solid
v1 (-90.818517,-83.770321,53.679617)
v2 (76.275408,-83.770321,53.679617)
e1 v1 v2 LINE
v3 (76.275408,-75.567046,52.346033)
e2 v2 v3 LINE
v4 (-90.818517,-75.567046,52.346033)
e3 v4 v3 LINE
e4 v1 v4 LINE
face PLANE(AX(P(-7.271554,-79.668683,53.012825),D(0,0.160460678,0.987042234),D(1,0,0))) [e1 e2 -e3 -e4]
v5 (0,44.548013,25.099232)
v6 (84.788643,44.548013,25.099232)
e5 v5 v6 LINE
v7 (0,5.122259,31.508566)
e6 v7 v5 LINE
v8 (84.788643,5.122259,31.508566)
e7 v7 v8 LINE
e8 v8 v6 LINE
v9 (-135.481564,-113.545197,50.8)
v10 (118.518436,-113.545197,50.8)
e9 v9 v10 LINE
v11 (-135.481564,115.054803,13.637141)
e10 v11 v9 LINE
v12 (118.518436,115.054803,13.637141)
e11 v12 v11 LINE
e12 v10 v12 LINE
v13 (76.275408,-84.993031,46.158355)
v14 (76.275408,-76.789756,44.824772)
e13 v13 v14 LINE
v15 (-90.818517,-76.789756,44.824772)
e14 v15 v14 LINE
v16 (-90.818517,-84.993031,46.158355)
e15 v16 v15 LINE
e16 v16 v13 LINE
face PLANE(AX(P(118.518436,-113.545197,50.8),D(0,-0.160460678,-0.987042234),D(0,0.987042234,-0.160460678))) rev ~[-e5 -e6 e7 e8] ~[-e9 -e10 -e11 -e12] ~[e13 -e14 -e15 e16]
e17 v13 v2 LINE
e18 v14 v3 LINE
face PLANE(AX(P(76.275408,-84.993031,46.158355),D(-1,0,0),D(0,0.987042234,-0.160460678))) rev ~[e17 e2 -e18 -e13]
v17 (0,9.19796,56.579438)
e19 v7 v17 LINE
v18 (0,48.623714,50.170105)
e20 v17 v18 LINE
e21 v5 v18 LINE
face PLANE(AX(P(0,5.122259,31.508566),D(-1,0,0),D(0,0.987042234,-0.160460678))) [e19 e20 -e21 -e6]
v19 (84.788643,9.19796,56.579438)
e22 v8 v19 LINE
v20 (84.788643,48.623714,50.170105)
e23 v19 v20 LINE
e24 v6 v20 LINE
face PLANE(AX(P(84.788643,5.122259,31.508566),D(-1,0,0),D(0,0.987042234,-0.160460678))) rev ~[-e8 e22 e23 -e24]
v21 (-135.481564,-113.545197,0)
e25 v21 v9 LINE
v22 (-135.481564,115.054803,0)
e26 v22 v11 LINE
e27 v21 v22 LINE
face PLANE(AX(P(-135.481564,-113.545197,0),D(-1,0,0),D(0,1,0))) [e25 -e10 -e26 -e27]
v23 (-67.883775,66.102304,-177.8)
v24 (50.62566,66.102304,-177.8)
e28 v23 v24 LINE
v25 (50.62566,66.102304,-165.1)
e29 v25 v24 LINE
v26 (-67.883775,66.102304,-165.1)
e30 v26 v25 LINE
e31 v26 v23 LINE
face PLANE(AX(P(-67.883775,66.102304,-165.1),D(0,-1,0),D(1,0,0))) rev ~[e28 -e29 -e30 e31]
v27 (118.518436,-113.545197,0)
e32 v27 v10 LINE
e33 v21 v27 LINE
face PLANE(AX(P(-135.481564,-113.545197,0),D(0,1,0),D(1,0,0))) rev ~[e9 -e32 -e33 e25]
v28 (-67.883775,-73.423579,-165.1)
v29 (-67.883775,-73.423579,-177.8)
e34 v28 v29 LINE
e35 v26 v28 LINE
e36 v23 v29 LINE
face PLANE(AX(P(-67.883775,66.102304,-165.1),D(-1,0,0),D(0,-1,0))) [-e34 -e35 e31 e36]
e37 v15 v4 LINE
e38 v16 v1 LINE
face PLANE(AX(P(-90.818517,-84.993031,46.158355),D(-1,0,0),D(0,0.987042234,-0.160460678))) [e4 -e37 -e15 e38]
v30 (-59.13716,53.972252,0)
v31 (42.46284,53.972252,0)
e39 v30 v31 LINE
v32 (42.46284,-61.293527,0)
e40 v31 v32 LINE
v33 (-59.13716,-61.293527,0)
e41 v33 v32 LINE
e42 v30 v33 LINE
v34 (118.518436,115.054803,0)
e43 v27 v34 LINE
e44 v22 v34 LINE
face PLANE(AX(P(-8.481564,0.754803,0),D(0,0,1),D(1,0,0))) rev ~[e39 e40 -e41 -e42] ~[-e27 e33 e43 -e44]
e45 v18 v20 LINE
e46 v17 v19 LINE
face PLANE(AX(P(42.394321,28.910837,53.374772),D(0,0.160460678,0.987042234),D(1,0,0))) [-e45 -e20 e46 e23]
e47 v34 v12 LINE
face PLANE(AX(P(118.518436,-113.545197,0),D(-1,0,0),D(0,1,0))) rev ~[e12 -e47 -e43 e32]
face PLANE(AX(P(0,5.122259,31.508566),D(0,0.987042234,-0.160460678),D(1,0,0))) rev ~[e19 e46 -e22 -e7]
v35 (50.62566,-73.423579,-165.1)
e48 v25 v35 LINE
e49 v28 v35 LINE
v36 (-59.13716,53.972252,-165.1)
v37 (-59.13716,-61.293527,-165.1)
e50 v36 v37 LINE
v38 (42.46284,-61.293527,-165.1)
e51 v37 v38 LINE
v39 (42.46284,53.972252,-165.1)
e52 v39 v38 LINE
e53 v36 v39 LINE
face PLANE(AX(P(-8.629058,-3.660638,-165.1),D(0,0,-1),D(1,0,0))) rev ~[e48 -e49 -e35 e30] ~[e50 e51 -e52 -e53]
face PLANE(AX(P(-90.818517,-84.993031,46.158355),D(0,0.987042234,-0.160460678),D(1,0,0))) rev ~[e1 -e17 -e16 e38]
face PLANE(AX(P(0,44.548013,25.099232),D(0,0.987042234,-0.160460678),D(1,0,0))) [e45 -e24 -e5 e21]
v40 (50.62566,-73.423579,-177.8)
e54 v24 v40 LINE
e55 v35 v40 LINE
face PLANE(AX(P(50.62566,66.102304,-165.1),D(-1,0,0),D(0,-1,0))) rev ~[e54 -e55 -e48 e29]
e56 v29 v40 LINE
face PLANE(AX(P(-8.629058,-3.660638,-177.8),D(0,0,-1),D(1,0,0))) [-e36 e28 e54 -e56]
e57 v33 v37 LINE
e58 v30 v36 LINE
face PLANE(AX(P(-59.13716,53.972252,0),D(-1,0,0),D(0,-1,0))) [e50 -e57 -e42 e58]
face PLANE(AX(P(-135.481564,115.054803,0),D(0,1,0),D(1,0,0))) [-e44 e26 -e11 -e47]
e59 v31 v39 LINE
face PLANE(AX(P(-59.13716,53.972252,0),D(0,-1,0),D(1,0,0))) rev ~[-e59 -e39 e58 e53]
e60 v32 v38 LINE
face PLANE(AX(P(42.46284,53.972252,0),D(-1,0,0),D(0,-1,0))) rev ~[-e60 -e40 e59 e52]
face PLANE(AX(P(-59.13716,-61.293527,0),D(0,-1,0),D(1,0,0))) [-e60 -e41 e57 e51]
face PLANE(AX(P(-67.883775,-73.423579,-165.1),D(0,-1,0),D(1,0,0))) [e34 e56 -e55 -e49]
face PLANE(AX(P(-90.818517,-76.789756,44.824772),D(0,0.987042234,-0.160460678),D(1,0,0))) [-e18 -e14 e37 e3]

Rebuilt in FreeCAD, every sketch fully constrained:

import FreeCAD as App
import Part
import Sketcher
from FreeCAD import Vector
Q = App.Units.Quantity

doc = App.newDocument("Part")
body = doc.addObject("PartDesign::Body", "Body")

# Sketch on XY plane
sketch1 = body.newObject("Sketcher::SketchObject", "Sketch")
sketch1.AttachmentSupport = (doc.getObject("XY_Plane"), [""])
sketch1.MapMode = "FlatFace"
sketch1.addGeometry([
    Part.LineSegment(Vector(-135.481564, 115.054803, 0), Vector(-135.481564, -113.545197, 0)),
    Part.LineSegment(Vector(-135.481564, -113.545197, 0), Vector(118.518436, -113.545197, 0)),
    Part.LineSegment(Vector(118.518436, -113.545197, 0), Vector(118.518436, 115.054803, 0)),
    Part.LineSegment(Vector(118.518436, 115.054803, 0), Vector(-135.481564, 115.054803, 0)),
], False)
sketch1.addConstraint([
    Sketcher.Constraint("Coincident", 0, 2, 1, 1),
    Sketcher.Constraint("Coincident", 1, 2, 2, 1),
    Sketcher.Constraint("Coincident", 2, 2, 3, 1),
    Sketcher.Constraint("Coincident", 3, 2, 0, 1),
    Sketcher.Constraint("Vertical", 0),
    Sketcher.Constraint("Horizontal", 1),
    Sketcher.Constraint("Vertical", 2),
    Sketcher.Constraint("Horizontal", 3),
    Sketcher.Constraint("DistanceX", 1, 1, 1, 2, Q("10 in")),
    Sketcher.Constraint("DistanceY", 0, 2, 0, 1, Q("9 in")),
    Sketcher.Constraint("DistanceX", 0, 2, -1, 1, Q("135.481564 mm")),
    Sketcher.Constraint("DistanceY", 0, 2, -1, 1, Q("113.545197 mm")),
])
pad1 = body.newObject("PartDesign::Pad", "Pad")
pad1.Profile = sketch1
pad1.Length = Q("2 in")

# Sketch on XY plane
sketch2 = body.newObject("Sketcher::SketchObject", "Sketch001")
sketch2.AttachmentSupport = (doc.getObject("XY_Plane"), [""])
sketch2.MapMode = "FlatFace"
sketch2.addGeometry([
    Part.LineSegment(Vector(-59.13716, -61.293527, 0), Vector(-59.13716, 53.972252, 0)),
    Part.LineSegment(Vector(-59.13716, 53.972252, 0), Vector(42.46284, 53.972252, 0)),
    Part.LineSegment(Vector(42.46284, 53.972252, 0), Vector(42.46284, -61.293527, 0)),
    Part.LineSegment(Vector(42.46284, -61.293527, 0), Vector(-59.13716, -61.293527, 0)),
], False)
sketch2.addConstraint([
    Sketcher.Constraint("Coincident", 0, 2, 1, 1),
    Sketcher.Constraint("Coincident", 1, 2, 2, 1),
    Sketcher.Constraint("Coincident", 2, 2, 3, 1),
    Sketcher.Constraint("Coincident", 3, 2, 0, 1),
    Sketcher.Constraint("Vertical", 0),
    Sketcher.Constraint("Horizontal", 1),
    Sketcher.Constraint("Vertical", 2),
    Sketcher.Constraint("Horizontal", 3),
    Sketcher.Constraint("DistanceX", 1, 1, 1, 2, Q("4 in")),
    Sketcher.Constraint("DistanceY", 0, 1, 0, 2, Q("115.265779 mm")),
    Sketcher.Constraint("DistanceX", 0, 2, -1, 1, Q("59.13716 mm")),
    Sketcher.Constraint("DistanceY", -1, 1, 0, 2, Q("53.972252 mm")),
])
pad2 = body.newObject("PartDesign::Pad", "Pad001")
pad2.Profile = sketch2
pad2.Length = Q("6.5 in")
pad2.Reversed = True

# Sketch on YZ plane
sketch3 = body.newObject("Sketcher::SketchObject", "Sketch002")
sketch3.AttachmentSupport = (doc.getObject("YZ_Plane"), [""])
sketch3.MapMode = "FlatFace"
sketch3.AttachmentOffset = App.Placement(Vector(0, 0, 118.518436), App.Rotation())
sketch3.addGeometry([
    Part.LineSegment(Vector(115.054803, 50.8, 0), Vector(-113.545197, 50.8, 0)),
    Part.LineSegment(Vector(-113.545197, 50.8, 0), Vector(115.054803, 13.637141, 0)),
    Part.LineSegment(Vector(115.054803, 13.637141, 0), Vector(115.054803, 50.8, 0)),
], False)
sketch3.addConstraint([
    Sketcher.Constraint("Coincident", 0, 2, 1, 1),
    Sketcher.Constraint("Coincident", 1, 2, 2, 1),
    Sketcher.Constraint("Coincident", 2, 2, 0, 1),
    Sketcher.Constraint("Horizontal", 0),
    Sketcher.Constraint("Vertical", 2),
    Sketcher.Constraint("DistanceX", 0, 2, 0, 1, Q("9 in")),
    Sketcher.Constraint("DistanceY", -1, 1, 0, 2, Q("2 in")),
    Sketcher.Constraint("DistanceY", 2, 1, 2, 2, Q("37.162859 mm")),
    Sketcher.Constraint("DistanceX", 0, 2, -1, 1, Q("113.545197 mm")),
])
pocket1 = body.newObject("PartDesign::Pocket", "Pocket")
pocket1.Profile = sketch3
pocket1.Length = Q("11 in")

# Sketch on XY plane
sketch4 = body.newObject("Sketcher::SketchObject", "Sketch003")
sketch4.AttachmentSupport = (doc.getObject("XY_Plane"), [""])
sketch4.MapMode = "FlatFace"
sketch4.AttachmentOffset = App.Placement(Vector(0, 0, -6.5 * 25.4), App.Rotation())
sketch4.addGeometry([
    Part.LineSegment(Vector(-67.883775, -73.423579, 0), Vector(-67.883775, 66.102304, 0)),
    Part.LineSegment(Vector(-67.883775, 66.102304, 0), Vector(50.62566, 66.102304, 0)),
    Part.LineSegment(Vector(50.62566, 66.102304, 0), Vector(50.62566, -73.423579, 0)),
    Part.LineSegment(Vector(50.62566, -73.423579, 0), Vector(-67.883775, -73.423579, 0)),
], False)
sketch4.addConstraint([
    Sketcher.Constraint("Coincident", 0, 2, 1, 1),
    Sketcher.Constraint("Coincident", 1, 2, 2, 1),
    Sketcher.Constraint("Coincident", 2, 2, 3, 1),
    Sketcher.Constraint("Coincident", 3, 2, 0, 1),
    Sketcher.Constraint("Vertical", 0),
    Sketcher.Constraint("Horizontal", 1),
    Sketcher.Constraint("Vertical", 2),
    Sketcher.Constraint("Horizontal", 3),
    Sketcher.Constraint("DistanceX", 1, 1, 1, 2, Q("118.509434 mm")),
    Sketcher.Constraint("DistanceY", 0, 1, 0, 2, Q("139.525883 mm")),
    Sketcher.Constraint("DistanceX", -1, 1, 1, 2, Q("50.62566 mm")),
    Sketcher.Constraint("DistanceY", 2, 2, -1, 1, Q("73.423579 mm")),
])
pad3 = body.newObject("PartDesign::Pad", "Pad002")
pad3.Profile = sketch4
pad3.Length = Q("0.5 in")
pad3.Reversed = True

# Sketch on an angled plane
sketch5 = body.newObject("Sketcher::SketchObject", "Sketch004")
sketch5.Placement = App.Placement(Vector(0, 5.122259, 31.508566), App.Rotation(Vector(1, 0, 0), Vector(0, 0.987042234, -0.160460678), Vector(0, 0.160460678, 0.987042234), "ZXY"))
sketch5.addGeometry([
    Part.LineSegment(Vector(-90.818517, -82.987346, 0), Vector(-90.818517, -91.298312, 0)),
    Part.LineSegment(Vector(-90.818517, -91.298312, 0), Vector(76.275408, -91.298312, 0)),
    Part.LineSegment(Vector(76.275408, -91.298312, 0), Vector(76.275408, -82.987346, 0)),
    Part.LineSegment(Vector(76.275408, -82.987346, 0), Vector(-90.818517, -82.987346, 0)),
], False)
sketch5.addConstraint([
    Sketcher.Constraint("Coincident", 0, 2, 1, 1),
    Sketcher.Constraint("Coincident", 1, 2, 2, 1),
    Sketcher.Constraint("Coincident", 2, 2, 3, 1),
    Sketcher.Constraint("Coincident", 3, 2, 0, 1),
    Sketcher.Constraint("Vertical", 0),
    Sketcher.Constraint("Horizontal", 1),
    Sketcher.Constraint("Vertical", 2),
    Sketcher.Constraint("Horizontal", 3),
    Sketcher.Constraint("DistanceX", 1, 1, 1, 2, Q("167.093925 mm")),
    Sketcher.Constraint("DistanceY", 0, 2, 0, 1, Q("8.310966 mm")),
    Sketcher.Constraint("DistanceX", -1, 1, 1, 2, Q("76.275408 mm")),
    Sketcher.Constraint("DistanceY", 0, 2, -1, 1, Q("91.298312 mm")),
])
pad4 = body.newObject("PartDesign::Pad", "Pad003")
pad4.Profile = sketch5
pad4.Length = Q("0.3 in")

# Sketch on an angled plane
sketch6 = body.newObject("Sketcher::SketchObject", "Sketch005")
sketch6.Placement = App.Placement(Vector(0, 5.122259, 31.508566), App.Rotation(Vector(1, 0, 0), Vector(0, 0.987042234, -0.160460678), Vector(0, 0.160460678, 0.987042234), "ZXY"))
sketch6.addGeometry([
    Part.LineSegment(Vector(0, 39.94333, 0), Vector(0, 0, 0)),
    Part.LineSegment(Vector(0, 0, 0), Vector(84.788643, 0, 0)),
    Part.LineSegment(Vector(84.788643, 0, 0), Vector(84.788643, 39.94333, 0)),
    Part.LineSegment(Vector(84.788643, 39.94333, 0), Vector(0, 39.94333, 0)),
], False)
sketch6.addConstraint([
    Sketcher.Constraint("Coincident", 0, 2, 1, 1),
    Sketcher.Constraint("Coincident", 1, 2, 2, 1),
    Sketcher.Constraint("Coincident", 2, 2, 3, 1),
    Sketcher.Constraint("Coincident", 3, 2, 0, 1),
    Sketcher.Constraint("Vertical", 0),
    Sketcher.Constraint("Horizontal", 1),
    Sketcher.Constraint("Vertical", 2),
    Sketcher.Constraint("Horizontal", 3),
    Sketcher.Constraint("Coincident", 0, 2, -1, 1),
    Sketcher.Constraint("DistanceY", 0, 2, 0, 1, Q("39.94333 mm")),
    Sketcher.Constraint("DistanceX", 1, 1, 1, 2, Q("84.788643 mm")),
])
pad5 = body.newObject("PartDesign::Pad", "Pad004")
pad5.Profile = sketch6
pad5.Length = Q("1 in")

doc.recompute()
